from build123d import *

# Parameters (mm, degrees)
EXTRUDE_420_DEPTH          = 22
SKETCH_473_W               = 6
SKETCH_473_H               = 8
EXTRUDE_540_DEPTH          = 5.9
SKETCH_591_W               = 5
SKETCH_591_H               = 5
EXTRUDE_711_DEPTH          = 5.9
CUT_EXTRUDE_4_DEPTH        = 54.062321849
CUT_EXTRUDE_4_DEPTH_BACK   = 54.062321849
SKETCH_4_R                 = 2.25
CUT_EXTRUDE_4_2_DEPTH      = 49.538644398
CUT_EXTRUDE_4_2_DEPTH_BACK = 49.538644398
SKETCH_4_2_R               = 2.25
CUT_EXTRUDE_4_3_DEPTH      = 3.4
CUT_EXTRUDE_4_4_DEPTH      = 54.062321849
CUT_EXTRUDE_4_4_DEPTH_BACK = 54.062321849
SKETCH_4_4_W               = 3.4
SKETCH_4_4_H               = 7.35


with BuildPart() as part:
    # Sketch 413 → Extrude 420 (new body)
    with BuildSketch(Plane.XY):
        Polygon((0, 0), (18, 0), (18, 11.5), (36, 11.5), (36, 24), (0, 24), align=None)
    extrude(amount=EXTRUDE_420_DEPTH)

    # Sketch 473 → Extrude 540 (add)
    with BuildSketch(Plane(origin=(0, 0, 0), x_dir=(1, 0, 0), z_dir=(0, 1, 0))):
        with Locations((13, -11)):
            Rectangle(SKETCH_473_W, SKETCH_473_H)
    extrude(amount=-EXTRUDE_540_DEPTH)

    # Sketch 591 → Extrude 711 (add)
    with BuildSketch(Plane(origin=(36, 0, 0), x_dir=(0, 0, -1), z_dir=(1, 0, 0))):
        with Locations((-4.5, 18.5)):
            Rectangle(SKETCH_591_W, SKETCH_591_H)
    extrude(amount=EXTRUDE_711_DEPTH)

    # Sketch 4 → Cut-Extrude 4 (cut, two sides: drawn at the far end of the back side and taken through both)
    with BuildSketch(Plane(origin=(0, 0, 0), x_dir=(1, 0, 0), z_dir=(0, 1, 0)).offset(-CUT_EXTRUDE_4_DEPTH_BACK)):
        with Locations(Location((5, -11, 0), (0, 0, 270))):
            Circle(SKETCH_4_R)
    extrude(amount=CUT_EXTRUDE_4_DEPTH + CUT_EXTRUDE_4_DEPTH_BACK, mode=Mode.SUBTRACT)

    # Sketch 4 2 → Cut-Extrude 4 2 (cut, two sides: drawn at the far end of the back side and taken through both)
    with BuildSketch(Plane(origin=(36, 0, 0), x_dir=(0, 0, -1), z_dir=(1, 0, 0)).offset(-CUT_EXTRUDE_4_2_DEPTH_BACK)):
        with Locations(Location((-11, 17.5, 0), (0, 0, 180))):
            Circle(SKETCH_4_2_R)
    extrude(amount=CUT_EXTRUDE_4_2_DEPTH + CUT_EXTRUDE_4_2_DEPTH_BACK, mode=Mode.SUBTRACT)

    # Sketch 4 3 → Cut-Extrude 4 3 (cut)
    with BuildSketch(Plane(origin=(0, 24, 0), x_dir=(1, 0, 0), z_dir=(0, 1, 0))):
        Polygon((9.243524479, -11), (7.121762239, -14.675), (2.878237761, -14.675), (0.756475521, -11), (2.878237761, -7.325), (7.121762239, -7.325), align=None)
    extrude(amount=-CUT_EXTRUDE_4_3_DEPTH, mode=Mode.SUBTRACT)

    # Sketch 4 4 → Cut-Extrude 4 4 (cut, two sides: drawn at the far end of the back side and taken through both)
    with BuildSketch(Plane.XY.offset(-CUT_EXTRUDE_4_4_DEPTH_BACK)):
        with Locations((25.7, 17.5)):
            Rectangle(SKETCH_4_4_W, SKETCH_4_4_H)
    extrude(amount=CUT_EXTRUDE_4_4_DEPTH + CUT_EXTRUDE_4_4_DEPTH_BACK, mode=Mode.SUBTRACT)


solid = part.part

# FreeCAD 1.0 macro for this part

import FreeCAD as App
import Part
import Sketcher
from FreeCAD import Vector
Q = App.Units.Quantity

doc = App.newDocument("Part")
body = doc.addObject("PartDesign::Body", "Body")

sketch1 = body.newObject("Sketcher::SketchObject", "Sketch")
sketch1.AttachmentSupport = (doc.getObject("XY_Plane"), [""])
sketch1.MapMode = "FlatFace"
sketch1.addGeometry(Part.LineSegment(Vector(0, 0, 0), Vector(18, 0, 0)), False)
sketch1.addGeometry(Part.LineSegment(Vector(18, 0, 0), Vector(18, 12, 0)), False)
sketch1.addGeometry(Part.LineSegment(Vector(18, 12, 0), Vector(36, 12, 0)), False)
sketch1.addGeometry(Part.LineSegment(Vector(36, 12, 0), Vector(36, 24, 0)), False)
sketch1.addGeometry(Part.LineSegment(Vector(36, 24, 0), Vector(0, 24, 0)), False)
sketch1.addGeometry(Part.LineSegment(Vector(0, 24, 0), Vector(0, 0, 0)), False)
sketch1.addConstraint(Sketcher.Constraint("Coincident", 0, 2, 1, 1))
sketch1.addConstraint(Sketcher.Constraint("Coincident", 1, 2, 2, 1))
sketch1.addConstraint(Sketcher.Constraint("Coincident", 2, 2, 3, 1))
sketch1.addConstraint(Sketcher.Constraint("Coincident", 3, 2, 4, 1))
sketch1.addConstraint(Sketcher.Constraint("Coincident", 4, 2, 5, 1))
sketch1.addConstraint(Sketcher.Constraint("Coincident", 5, 2, 0, 1))
sketch1.addConstraint(Sketcher.Constraint("Horizontal", 0))
sketch1.addConstraint(Sketcher.Constraint("Vertical", 1))
sketch1.addConstraint(Sketcher.Constraint("Horizontal", 2))
sketch1.addConstraint(Sketcher.Constraint("Vertical", 3))
sketch1.addConstraint(Sketcher.Constraint("Horizontal", 4))
sketch1.addConstraint(Sketcher.Constraint("Vertical", 5))
sketch1.addConstraint(Sketcher.Constraint("Coincident", 5, 2, -1, 1))
sketch1.addConstraint(Sketcher.Constraint("Equal", 0, 2))
sketch1.addConstraint(Sketcher.Constraint("DistanceX", 0, 1, 0, 2, 18.0))
sketch1.addConstraint(Sketcher.Constraint("DistanceY", 5, 2, 5, 1, 24.0))
sketch1.addConstraint(Sketcher.Constraint("DistanceY", 1, 1, 1, 2, 11.5))
pad1 = body.newObject("PartDesign::Pad", "Pad")
pad1.Profile = sketch1
pad1.Length = 22

sketch2 = body.newObject("Sketcher::SketchObject", "Sketch001")
sketch2.AttachmentSupport = (doc.getObject("XZ_Plane"), [""])
sketch2.MapMode = "FlatFace"
sketch2.addGeometry(Part.LineSegment(Vector(10, 7, 0), Vector(10, 15, 0)), False)
sketch2.addGeometry(Part.LineSegment(Vector(10, 15, 0), Vector(16, 15, 0)), False)
sketch2.addGeometry(Part.LineSegment(Vector(16, 15, 0), Vector(16, 7, 0)), False)
sketch2.addGeometry(Part.LineSegment(Vector(16, 7, 0), Vector(10, 7, 0)), False)
sketch2.addConstraint(Sketcher.Constraint("Coincident", 0, 2, 1, 1))
sketch2.addConstraint(Sketcher.Constraint("Coincident", 1, 2, 2, 1))
sketch2.addConstraint(Sketcher.Constraint("Coincident", 2, 2, 3, 1))
sketch2.addConstraint(Sketcher.Constraint("Coincident", 3, 2, 0, 1))
sketch2.addConstraint(Sketcher.Constraint("Vertical", 0))
sketch2.addConstraint(Sketcher.Constraint("Horizontal", 1))
sketch2.addConstraint(Sketcher.Constraint("Vertical", 2))
sketch2.addConstraint(Sketcher.Constraint("Horizontal", 3))
sketch2.addConstraint(Sketcher.Constraint("DistanceX", 1, 1, 1, 2, 6.0))
sketch2.addConstraint(Sketcher.Constraint("DistanceY", 0, 1, 0, 2, 8.0))
sketch2.addConstraint(Sketcher.Constraint("DistanceX", -1, 1, 0, 2, 10.0))
sketch2.addConstraint(Sketcher.Constraint("DistanceY", -1, 1, 0, 2, 15.0))
pad2 = body.newObject("PartDesign::Pad", "Pad001")
pad2.Profile = sketch2
pad2.Length = 5.9

sketch3 = body.newObject("Sketcher::SketchObject", "Sketch002")
sketch3.AttachmentSupport = (doc.getObject("YZ_Plane"), [""])
sketch3.MapMode = "FlatFace"
sketch3.AttachmentOffset = App.Placement(Vector(0, 0, 36), App.Rotation())
sketch3.addGeometry(Part.LineSegment(Vector(21, 7, 0), Vector(16, 7, 0)), False)
sketch3.addGeometry(Part.LineSegment(Vector(16, 7, 0), Vector(16, 2, 0)), False)
sketch3.addGeometry(Part.LineSegment(Vector(16, 2, 0), Vector(21, 2, 0)), False)
sketch3.addGeometry(Part.LineSegment(Vector(21, 2, 0), Vector(21, 7, 0)), False)
sketch3.addConstraint(Sketcher.Constraint("Coincident", 0, 2, 1, 1))
sketch3.addConstraint(Sketcher.Constraint("Coincident", 1, 2, 2, 1))
sketch3.addConstraint(Sketcher.Constraint("Coincident", 2, 2, 3, 1))
sketch3.addConstraint(Sketcher.Constraint("Coincident", 3, 2, 0, 1))
sketch3.addConstraint(Sketcher.Constraint("Horizontal", 0))
sketch3.addConstraint(Sketcher.Constraint("Vertical", 1))
sketch3.addConstraint(Sketcher.Constraint("Horizontal", 2))
sketch3.addConstraint(Sketcher.Constraint("Vertical", 3))
sketch3.addConstraint(Sketcher.Constraint("Equal", 2, 1))
sketch3.addConstraint(Sketcher.Constraint("DistanceX", 0, 2, 0, 1, 5.0))
sketch3.addConstraint(Sketcher.Constraint("DistanceX", -1, 1, 0, 2, 16.0))
sketch3.addConstraint(Sketcher.Constraint("DistanceY", -1, 1, 0, 2, 7.0))
pad3 = body.newObject("PartDesign::Pad", "Pad002")
pad3.Profile = sketch3
pad3.Length = 5.9

sketch4 = body.newObject("Sketcher::SketchObject", "Sketch003")
sketch4.AttachmentSupport = (doc.getObject("XZ_Plane"), [""])
sketch4.MapMode = "FlatFace"
sketch4.addGeometry(Part.Circle(Vector(5, 11, 0), Vector(0, 0, 1), 2.2), False)
sketch4.addConstraint(Sketcher.Constraint("Diameter", 0, 4.5))
sketch4.addConstraint(Sketcher.Constraint("DistanceX", -1, 1, 0, 3, 5.0))
sketch4.addConstraint(Sketcher.Constraint("DistanceY", -1, 1, 0, 3, 11.0))
pocket1 = body.newObject("PartDesign::Pocket", "Pocket")
pocket1.Profile = sketch4
pocket1.Type = "ThroughAll"
pocket1.Midplane = True

sketch5 = body.newObject("Sketcher::SketchObject", "Sketch004")
sketch5.AttachmentSupport = (doc.getObject("YZ_Plane"), [""])
sketch5.MapMode = "FlatFace"
sketch5.AttachmentOffset = App.Placement(Vector(0, 0, 36), App.Rotation())
sketch5.addGeometry(Part.Circle(Vector(17.5, 11, 0), Vector(0, 0, 1), 2.2), False)
sketch5.addConstraint(Sketcher.Constraint("Diameter", 0, 4.5))
sketch5.addConstraint(Sketcher.Constraint("DistanceY", -1, 1, 0, 3, 11.0))
sketch5.addConstraint(Sketcher.Constraint("DistanceX", -1, 1, 0, 3, 17.5))
pocket2 = body.newObject("PartDesign::Pocket", "Pocket001")
pocket2.Profile = sketch5
pocket2.Type = "ThroughAll"
pocket2.Midplane = True

sketch6 = body.newObject("Sketcher::SketchObject", "Sketch005")
sketch6.AttachmentSupport = (doc.getObject("XZ_Plane"), [""])
sketch6.MapMode = "FlatFace"
sketch6.AttachmentOffset = App.Placement(Vector(0, 0, -24), App.Rotation())
sketch6.addGeometry(Part.LineSegment(Vector(7.1, 14.7, 0), Vector(9.2, 11, 0)), False)
sketch6.addGeometry(Part.LineSegment(Vector(9.2, 11, 0), Vector(7.1, 7.3, 0)), False)
sketch6.addGeometry(Part.LineSegment(Vector(7.1, 7.3, 0), Vector(2.9, 7.3, 0)), False)
sketch6.addGeometry(Part.LineSegment(Vector(2.9, 7.3, 0), Vector(0.8, 11, 0)), False)
sketch6.addGeometry(Part.LineSegment(Vector(0.8, 11, 0), Vector(2.9, 14.7, 0)), False)
sketch6.addGeometry(Part.LineSegment(Vector(2.9, 14.7, 0), Vector(7.1, 14.7, 0)), False)
sketch6.addConstraint(Sketcher.Constraint("Coincident", 0, 2, 1, 1))
sketch6.addConstraint(Sketcher.Constraint("Coincident", 1, 2, 2, 1))
sketch6.addConstraint(Sketcher.Constraint("Coincident", 2, 2, 3, 1))
sketch6.addConstraint(Sketcher.Constraint("Coincident", 3, 2, 4, 1))
sketch6.addConstraint(Sketcher.Constraint("Coincident", 4, 2, 5, 1))
sketch6.addConstraint(Sketcher.Constraint("Coincident", 5, 2, 0, 1))
sketch6.addConstraint(Sketcher.Constraint("Horizontal", 2))
sketch6.addConstraint(Sketcher.Constraint("Horizontal", 5))
sketch6.addConstraint(Sketcher.Constraint("Parallel", 0, 3))
sketch6.addConstraint(Sketcher.Constraint("Parallel", 1, 4))
sketch6.addConstraint(Sketcher.Constraint("Horizontal", 0, 2, 3, 2))
sketch6.addConstraint(Sketcher.Constraint("Vertical", 2, 2, 4, 2))
sketch6.addConstraint(Sketcher.Constraint("Vertical", 1, 2, 5, 2))
sketch6.addConstraint(Sketcher.Constraint("Angle", 0, Q("-60 deg")))
sketch6.addConstraint(Sketcher.Constraint("DistanceY", -1, 1, 0, 2, 11.0))
sketch6.addConstraint(Sketcher.Constraint("DistanceY", 2, 2, 4, 2, 7.35))
sketch6.addConstraint(Sketcher.Constraint("DistanceX", 2, 2, 2, 1, 4.243524))
sketch6.addConstraint(Sketcher.Constraint("DistanceX", -1, 1, 0, 2, 9.243524))
pocket3 = body.newObject("PartDesign::Pocket", "Pocket002")
pocket3.Profile = sketch6
pocket3.Length = 3.4
pocket3.Reversed = True

sketch7 = body.newObject("Sketcher::SketchObject", "Sketch006")
sketch7.AttachmentSupport = (doc.getObject("XY_Plane"), [""])
sketch7.MapMode = "FlatFace"
sketch7.addGeometry(Part.LineSegment(Vector(24, 21.2, 0), Vector(24, 13.8, 0)), False)
sketch7.addGeometry(Part.LineSegment(Vector(24, 13.8, 0), Vector(27.4, 13.8, 0)), False)
sketch7.addGeometry(Part.LineSegment(Vector(27.4, 13.8, 0), Vector(27.4, 21.2, 0)), False)
sketch7.addGeometry(Part.LineSegment(Vector(27.4, 21.2, 0), Vector(24, 21.2, 0)), False)
sketch7.addConstraint(Sketcher.Constraint("Coincident", 0, 2, 1, 1))
sketch7.addConstraint(Sketcher.Constraint("Coincident", 1, 2, 2, 1))
sketch7.addConstraint(Sketcher.Constraint("Coincident", 2, 2, 3, 1))
sketch7.addConstraint(Sketcher.Constraint("Coincident", 3, 2, 0, 1))
sketch7.addConstraint(Sketcher.Constraint("Vertical", 0))
sketch7.addConstraint(Sketcher.Constraint("Horizontal", 1))
sketch7.addConstraint(Sketcher.Constraint("Vertical", 2))
sketch7.addConstraint(Sketcher.Constraint("Horizontal", 3))
sketch7.addConstraint(Sketcher.Constraint("DistanceX", 1, 1, 1, 2, 3.4))
sketch7.addConstraint(Sketcher.Constraint("DistanceX", -1, 1, 0, 2, 24.0))
sketch7.addConstraint(Sketcher.Constraint("DistanceY", 0, 2, 0, 1, 7.35))
sketch7.addConstraint(Sketcher.Constraint("DistanceY", -1, 1, 0, 2, 13.825))
pocket4 = body.newObject("PartDesign::Pocket", "Pocket003")
pocket4.Profile = sketch7
pocket4.Type = "ThroughAll"
pocket4.Midplane = True

doc.recompute()
